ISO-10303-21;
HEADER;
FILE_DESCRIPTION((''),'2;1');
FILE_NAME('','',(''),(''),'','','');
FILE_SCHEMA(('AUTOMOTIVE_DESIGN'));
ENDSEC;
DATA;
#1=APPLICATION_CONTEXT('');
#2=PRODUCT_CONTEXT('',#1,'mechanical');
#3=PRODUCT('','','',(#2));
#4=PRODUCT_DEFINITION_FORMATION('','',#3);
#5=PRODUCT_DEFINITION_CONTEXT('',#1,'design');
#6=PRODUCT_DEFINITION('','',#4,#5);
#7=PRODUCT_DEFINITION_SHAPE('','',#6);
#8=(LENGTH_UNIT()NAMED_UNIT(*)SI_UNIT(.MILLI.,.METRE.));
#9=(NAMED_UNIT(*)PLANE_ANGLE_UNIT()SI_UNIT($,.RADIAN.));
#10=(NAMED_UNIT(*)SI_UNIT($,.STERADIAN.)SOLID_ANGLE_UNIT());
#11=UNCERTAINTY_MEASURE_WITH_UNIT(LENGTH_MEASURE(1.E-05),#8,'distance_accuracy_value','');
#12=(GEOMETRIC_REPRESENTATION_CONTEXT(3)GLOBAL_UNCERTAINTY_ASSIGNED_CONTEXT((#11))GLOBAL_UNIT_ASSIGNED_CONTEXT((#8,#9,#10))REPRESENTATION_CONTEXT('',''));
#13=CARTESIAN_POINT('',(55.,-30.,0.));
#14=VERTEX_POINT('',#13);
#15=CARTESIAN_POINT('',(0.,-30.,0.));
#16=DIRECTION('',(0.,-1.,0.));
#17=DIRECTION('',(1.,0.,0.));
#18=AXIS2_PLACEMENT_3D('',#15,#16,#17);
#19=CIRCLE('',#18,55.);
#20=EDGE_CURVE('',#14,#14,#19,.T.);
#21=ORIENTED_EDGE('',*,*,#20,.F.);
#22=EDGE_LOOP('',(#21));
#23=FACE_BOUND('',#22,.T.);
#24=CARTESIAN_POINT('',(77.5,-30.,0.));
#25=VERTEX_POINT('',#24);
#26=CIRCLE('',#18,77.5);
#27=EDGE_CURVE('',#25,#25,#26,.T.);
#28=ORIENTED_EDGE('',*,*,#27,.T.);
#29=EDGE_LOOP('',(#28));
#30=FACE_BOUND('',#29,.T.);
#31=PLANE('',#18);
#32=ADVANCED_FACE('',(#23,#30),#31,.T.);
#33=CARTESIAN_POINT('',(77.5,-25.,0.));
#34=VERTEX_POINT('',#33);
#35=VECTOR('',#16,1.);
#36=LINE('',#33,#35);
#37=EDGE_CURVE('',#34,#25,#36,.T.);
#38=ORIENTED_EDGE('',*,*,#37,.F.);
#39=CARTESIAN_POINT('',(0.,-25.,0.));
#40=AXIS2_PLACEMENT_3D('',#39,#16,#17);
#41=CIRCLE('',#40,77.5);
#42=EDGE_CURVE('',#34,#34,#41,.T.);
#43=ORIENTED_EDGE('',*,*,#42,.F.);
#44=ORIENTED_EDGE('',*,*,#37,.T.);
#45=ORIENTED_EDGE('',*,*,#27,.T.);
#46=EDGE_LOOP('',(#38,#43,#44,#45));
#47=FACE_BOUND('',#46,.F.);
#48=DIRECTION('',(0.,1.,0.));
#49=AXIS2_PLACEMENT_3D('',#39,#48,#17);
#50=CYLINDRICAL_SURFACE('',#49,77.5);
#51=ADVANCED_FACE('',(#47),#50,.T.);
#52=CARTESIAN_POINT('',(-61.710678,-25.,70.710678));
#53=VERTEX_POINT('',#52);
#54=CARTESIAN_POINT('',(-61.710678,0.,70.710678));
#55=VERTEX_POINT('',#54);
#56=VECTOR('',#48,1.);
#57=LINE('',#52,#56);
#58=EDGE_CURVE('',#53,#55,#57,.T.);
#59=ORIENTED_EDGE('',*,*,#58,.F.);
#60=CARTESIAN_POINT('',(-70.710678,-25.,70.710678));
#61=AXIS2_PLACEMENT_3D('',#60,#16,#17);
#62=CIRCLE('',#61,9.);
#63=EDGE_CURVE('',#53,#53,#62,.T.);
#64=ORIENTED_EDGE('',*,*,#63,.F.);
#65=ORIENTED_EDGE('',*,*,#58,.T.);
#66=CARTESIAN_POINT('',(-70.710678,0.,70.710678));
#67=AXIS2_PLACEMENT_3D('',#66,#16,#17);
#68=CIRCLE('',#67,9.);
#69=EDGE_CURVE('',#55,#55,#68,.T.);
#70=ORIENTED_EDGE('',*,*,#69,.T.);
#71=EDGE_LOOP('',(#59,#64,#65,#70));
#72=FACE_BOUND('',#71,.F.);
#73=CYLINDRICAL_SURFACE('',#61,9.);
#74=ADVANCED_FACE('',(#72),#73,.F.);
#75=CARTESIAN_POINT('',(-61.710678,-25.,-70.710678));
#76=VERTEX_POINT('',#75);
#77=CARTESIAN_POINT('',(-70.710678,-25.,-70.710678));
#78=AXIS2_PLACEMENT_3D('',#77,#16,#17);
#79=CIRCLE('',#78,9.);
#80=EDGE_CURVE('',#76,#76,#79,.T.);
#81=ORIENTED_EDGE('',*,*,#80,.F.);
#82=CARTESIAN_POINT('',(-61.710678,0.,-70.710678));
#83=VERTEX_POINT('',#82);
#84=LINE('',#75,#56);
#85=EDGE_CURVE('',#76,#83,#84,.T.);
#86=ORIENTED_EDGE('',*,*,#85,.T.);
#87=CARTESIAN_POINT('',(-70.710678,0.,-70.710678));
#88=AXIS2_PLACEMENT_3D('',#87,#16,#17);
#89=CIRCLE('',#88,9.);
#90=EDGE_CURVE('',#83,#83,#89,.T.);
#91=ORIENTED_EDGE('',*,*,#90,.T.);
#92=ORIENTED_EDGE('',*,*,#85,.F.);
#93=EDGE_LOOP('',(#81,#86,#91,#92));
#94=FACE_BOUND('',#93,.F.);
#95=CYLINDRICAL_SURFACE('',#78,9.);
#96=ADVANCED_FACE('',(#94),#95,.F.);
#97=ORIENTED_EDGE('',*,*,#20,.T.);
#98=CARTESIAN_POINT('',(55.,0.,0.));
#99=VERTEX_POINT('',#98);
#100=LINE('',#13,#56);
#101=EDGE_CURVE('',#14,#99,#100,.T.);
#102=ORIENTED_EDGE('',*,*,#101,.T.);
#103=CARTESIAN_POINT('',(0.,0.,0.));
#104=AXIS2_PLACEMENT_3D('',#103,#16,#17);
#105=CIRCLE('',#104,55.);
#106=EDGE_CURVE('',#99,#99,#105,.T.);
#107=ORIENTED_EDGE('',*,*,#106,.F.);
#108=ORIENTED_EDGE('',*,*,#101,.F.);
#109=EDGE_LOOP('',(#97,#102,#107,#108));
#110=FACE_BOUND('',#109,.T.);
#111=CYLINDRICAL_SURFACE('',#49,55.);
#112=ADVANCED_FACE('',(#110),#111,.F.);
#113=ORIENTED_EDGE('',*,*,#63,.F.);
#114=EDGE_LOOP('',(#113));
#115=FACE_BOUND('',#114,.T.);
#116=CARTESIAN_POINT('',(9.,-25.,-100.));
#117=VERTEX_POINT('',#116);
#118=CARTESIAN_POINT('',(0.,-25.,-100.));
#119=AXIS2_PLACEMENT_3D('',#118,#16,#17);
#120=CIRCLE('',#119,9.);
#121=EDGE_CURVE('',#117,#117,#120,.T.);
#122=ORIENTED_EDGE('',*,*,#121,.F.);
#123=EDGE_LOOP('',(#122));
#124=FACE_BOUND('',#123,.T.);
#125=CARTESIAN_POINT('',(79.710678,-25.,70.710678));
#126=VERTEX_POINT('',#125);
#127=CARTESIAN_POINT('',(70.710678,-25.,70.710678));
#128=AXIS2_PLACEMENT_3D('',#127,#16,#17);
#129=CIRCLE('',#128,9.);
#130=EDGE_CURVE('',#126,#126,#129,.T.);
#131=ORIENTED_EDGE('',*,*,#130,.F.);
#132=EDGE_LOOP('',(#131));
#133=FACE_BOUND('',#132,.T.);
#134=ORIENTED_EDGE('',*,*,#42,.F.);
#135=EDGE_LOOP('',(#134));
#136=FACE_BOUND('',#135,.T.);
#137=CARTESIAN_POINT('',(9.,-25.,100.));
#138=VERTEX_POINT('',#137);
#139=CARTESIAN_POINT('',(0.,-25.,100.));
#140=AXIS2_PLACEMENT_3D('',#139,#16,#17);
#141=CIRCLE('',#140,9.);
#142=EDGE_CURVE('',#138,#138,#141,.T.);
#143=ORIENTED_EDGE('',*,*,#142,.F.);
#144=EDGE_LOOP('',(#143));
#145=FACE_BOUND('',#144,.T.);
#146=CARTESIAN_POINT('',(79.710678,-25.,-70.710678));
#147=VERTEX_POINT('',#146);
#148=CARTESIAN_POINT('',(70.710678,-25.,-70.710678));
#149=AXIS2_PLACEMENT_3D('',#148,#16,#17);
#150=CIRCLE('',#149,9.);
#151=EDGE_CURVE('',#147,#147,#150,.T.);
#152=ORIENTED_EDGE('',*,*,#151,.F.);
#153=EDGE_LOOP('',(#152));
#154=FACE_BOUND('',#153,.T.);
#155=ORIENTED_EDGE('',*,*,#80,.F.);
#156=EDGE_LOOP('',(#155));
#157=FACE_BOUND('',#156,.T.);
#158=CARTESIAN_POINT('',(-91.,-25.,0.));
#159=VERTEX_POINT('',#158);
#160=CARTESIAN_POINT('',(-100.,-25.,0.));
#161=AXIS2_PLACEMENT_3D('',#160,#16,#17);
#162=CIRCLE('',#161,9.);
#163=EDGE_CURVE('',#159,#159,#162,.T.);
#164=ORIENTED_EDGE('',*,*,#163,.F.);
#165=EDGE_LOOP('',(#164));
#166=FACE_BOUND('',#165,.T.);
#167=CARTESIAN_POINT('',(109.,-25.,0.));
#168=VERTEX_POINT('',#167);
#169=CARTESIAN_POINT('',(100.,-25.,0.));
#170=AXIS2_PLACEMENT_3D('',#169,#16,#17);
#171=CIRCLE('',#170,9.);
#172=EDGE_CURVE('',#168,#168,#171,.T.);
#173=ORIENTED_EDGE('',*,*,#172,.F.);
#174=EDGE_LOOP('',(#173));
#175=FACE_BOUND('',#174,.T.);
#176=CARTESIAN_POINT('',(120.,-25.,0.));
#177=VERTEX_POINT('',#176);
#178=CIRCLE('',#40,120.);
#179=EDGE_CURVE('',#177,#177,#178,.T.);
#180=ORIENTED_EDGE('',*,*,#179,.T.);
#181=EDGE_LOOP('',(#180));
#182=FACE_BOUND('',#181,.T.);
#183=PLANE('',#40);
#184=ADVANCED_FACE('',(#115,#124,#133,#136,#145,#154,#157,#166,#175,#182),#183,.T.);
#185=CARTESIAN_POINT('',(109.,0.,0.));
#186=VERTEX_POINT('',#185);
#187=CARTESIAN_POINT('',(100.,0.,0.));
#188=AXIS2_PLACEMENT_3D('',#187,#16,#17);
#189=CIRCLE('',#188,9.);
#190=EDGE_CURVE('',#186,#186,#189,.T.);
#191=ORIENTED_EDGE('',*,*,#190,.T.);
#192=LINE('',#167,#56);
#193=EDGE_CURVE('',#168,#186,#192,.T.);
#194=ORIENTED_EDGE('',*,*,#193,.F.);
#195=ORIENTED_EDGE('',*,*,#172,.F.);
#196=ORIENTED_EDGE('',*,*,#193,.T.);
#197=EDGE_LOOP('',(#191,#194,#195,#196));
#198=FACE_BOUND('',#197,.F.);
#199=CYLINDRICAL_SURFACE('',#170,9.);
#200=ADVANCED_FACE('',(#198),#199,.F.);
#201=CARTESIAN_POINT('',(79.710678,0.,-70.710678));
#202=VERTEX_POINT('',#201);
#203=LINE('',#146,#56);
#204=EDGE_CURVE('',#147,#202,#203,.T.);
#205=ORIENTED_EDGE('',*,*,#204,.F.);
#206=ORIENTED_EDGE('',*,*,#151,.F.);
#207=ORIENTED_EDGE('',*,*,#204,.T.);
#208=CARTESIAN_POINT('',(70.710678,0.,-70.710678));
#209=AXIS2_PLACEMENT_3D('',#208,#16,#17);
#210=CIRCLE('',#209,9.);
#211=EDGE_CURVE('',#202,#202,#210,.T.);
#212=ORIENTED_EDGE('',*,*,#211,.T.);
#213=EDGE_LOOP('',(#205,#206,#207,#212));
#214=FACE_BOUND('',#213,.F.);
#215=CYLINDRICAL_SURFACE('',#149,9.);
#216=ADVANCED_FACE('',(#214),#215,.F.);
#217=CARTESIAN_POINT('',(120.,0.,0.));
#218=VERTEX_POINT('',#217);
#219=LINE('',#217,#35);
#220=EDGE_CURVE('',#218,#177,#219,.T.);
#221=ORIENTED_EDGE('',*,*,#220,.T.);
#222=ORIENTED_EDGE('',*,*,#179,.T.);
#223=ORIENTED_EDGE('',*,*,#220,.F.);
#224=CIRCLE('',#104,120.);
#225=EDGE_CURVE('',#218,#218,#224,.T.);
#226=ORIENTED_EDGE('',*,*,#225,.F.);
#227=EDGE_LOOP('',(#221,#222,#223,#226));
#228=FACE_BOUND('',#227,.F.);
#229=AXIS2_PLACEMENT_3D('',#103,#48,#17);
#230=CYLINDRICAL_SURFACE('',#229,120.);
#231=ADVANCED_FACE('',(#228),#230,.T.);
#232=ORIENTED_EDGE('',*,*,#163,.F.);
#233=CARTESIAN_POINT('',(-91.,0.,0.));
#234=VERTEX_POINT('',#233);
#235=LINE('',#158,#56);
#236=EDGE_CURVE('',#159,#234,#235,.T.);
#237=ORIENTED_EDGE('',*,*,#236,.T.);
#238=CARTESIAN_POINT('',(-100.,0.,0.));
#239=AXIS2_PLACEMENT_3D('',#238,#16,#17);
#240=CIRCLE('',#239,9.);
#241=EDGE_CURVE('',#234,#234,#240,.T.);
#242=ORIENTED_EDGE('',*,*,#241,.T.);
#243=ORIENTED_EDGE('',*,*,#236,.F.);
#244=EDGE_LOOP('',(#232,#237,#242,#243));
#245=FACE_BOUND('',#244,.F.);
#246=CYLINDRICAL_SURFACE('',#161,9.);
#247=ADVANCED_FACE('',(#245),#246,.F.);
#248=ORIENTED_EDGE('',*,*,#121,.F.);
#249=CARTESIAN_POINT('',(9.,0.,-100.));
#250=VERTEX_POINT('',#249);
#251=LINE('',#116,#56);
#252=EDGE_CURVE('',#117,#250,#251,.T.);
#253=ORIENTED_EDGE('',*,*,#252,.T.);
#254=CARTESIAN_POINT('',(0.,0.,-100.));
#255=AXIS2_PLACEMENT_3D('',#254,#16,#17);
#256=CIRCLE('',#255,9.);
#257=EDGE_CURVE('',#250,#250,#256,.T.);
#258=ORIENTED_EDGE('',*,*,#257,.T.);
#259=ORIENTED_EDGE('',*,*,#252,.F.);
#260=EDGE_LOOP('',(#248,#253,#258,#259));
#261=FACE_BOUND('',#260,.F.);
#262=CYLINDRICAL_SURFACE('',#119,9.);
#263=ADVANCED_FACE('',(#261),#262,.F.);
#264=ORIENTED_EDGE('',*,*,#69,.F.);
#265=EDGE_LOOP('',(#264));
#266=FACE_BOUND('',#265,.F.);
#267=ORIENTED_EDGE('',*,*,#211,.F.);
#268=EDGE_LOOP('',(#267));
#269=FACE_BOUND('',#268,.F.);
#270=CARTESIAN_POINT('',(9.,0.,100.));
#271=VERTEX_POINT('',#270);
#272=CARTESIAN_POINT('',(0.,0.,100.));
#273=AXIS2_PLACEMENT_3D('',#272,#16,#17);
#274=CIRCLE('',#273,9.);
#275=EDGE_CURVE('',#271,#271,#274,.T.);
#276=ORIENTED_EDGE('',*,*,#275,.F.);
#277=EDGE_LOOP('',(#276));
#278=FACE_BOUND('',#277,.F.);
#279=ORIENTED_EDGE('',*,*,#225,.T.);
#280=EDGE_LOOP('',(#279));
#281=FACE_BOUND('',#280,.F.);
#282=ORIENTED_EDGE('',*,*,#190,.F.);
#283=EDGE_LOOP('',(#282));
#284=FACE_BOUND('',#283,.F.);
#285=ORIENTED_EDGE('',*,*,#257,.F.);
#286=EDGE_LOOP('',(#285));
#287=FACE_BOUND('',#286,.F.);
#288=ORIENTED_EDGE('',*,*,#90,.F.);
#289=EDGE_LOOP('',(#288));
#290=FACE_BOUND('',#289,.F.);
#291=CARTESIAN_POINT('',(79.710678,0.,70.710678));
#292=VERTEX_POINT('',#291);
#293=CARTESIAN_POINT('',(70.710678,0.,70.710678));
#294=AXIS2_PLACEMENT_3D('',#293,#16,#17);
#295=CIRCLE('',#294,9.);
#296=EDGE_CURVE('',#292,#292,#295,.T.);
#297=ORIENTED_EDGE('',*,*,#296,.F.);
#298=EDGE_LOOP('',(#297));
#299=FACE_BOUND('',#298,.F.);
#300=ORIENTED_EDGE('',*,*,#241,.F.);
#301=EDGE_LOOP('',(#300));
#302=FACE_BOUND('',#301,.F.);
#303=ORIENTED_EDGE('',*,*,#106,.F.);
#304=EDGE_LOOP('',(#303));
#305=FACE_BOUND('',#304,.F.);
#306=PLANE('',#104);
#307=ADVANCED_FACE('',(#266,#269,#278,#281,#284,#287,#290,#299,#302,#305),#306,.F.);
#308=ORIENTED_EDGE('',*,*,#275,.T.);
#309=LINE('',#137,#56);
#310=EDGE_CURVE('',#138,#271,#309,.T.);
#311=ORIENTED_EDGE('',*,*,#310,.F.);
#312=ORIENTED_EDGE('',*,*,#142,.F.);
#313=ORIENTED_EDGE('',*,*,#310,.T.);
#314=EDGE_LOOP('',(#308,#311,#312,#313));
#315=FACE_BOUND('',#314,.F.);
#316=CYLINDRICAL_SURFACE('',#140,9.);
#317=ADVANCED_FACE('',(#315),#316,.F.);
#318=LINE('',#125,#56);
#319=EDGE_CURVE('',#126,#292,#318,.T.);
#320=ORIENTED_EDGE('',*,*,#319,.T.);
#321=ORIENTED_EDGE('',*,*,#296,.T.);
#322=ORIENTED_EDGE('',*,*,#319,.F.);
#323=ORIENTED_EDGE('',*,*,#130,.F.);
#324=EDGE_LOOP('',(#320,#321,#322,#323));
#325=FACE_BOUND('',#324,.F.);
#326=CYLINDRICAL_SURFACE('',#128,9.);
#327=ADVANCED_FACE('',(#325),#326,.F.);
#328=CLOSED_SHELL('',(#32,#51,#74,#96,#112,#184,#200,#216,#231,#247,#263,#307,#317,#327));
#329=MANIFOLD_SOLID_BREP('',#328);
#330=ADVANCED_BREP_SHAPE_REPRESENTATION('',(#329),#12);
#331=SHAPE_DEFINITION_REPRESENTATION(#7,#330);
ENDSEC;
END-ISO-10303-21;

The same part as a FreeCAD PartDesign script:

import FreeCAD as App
import Part
import Sketcher
from FreeCAD import Vector
Q = App.Units.Quantity

doc = App.newDocument("Part")
body = doc.addObject("PartDesign::Body", "Body")

# Sketch on XZ plane
sketch1 = body.newObject("Sketcher::SketchObject", "Sketch")
sketch1.AttachmentSupport = (doc.getObject("XZ_Plane"), [""])
sketch1.MapMode = "FlatFace"
sketch1.addGeometry(Part.Circle(Vector(0, 0, 0), Vector(0, 0, 1), 120), False)
sketch1.addGeometry(Part.Circle(Vector(0, 0, 0), Vector(0, 0, 1), 55), False)
sketch1.addConstraint(Sketcher.Constraint("Coincident", 0, 3, -1, 1))
sketch1.addConstraint(Sketcher.Constraint("Coincident", 1, 3, -1, 1))
sketch1.addConstraint(Sketcher.Constraint("Diameter", 0, Q("240 mm")))
sketch1.addConstraint(Sketcher.Constraint("Diameter", 1, Q("110 mm")))
pad1 = body.newObject("PartDesign::Pad", "Pad")
pad1.Profile = sketch1
pad1.Length = 25

# Sketch on XZ plane
sketch2 = body.newObject("Sketcher::SketchObject", "Sketch001")
sketch2.AttachmentSupport = (doc.getObject("XZ_Plane"), [""])
sketch2.MapMode = "FlatFace"
sketch2.AttachmentOffset = App.Placement(Vector(0, 0, 25), App.Rotation())
sketch2.addGeometry(Part.Circle(Vector(0, 100, 0), Vector(0, 0, 1), 9), False)
sketch2.addGeometry(Part.Circle(Vector(-71, 71, 0), Vector(0, 0, 1), 9), False)
sketch2.addGeometry(Part.Circle(Vector(-100, 0, 0), Vector(0, 0, 1), 9), False)
sketch2.addGeometry(Part.Circle(Vector(-71, -71, 0), Vector(0, 0, 1), 9), False)
sketch2.addGeometry(Part.Circle(Vector(0, -100, 0), Vector(0, 0, 1), 9), False)
sketch2.addGeometry(Part.Circle(Vector(71, -71, 0), Vector(0, 0, 1), 9), False)
sketch2.addGeometry(Part.Circle(Vector(100, 0, 0), Vector(0, 0, 1), 9), False)
sketch2.addGeometry(Part.Circle(Vector(71, 71, 0), Vector(0, 0, 1), 9), False)
sketch2.addConstraint(Sketcher.Constraint("Equal", 0, 1))
sketch2.addConstraint(Sketcher.Constraint("Equal", 1, 2))
sketch2.addConstraint(Sketcher.Constraint("Equal", 2, 3))
sketch2.addConstraint(Sketcher.Constraint("Equal", 3, 4))
sketch2.addConstraint(Sketcher.Constraint("Equal", 4, 5))
sketch2.addConstraint(Sketcher.Constraint("Equal", 5, 6))
sketch2.addConstraint(Sketcher.Constraint("Equal", 6, 7))
sketch2.addConstraint(Sketcher.Constraint("Symmetric", 0, 3, 4, 3, -1, 1))
sketch2.addConstraint(Sketcher.Constraint("Symmetric", 1, 3, 5, 3, -1, 1))
sketch2.addConstraint(Sketcher.Constraint("Symmetric", 2, 3, 6, 3, -1, 1))
sketch2.addConstraint(Sketcher.Constraint("Symmetric", 3, 3, 7, 3, -1, 1))
sketch2.addConstraint(Sketcher.Constraint("Symmetric", 3, 3, 5, 3, -2))
sketch2.addConstraint(Sketcher.Constraint("PointOnObject", 0, 3, -2))
sketch2.addConstraint(Sketcher.Constraint("PointOnObject", 2, 3, -1))
sketch2.addConstraint(Sketcher.Constraint("Diameter", 0, Q("18 mm")))
sketch2.addConstraint(Sketcher.Constraint("DistanceY", -1, 1, 0, 3, Q("100 mm")))
sketch2.addConstraint(Sketcher.Constraint("DistanceX", 2, 3, -1, 1, Q("100 mm")))
sketch2.addConstraint(Sketcher.Constraint("DistanceX", 1, 3, -1, 1, Q("70.710678 mm")))
sketch2.addConstraint(Sketcher.Constraint("DistanceY", -1, 1, 1, 3, Q("70.710678 mm")))
pocket1 = body.newObject("PartDesign::Pocket", "Pocket")
pocket1.Profile = sketch2
pocket1.Length = 25

# Sketch on XZ plane
sketch3 = body.newObject("Sketcher::SketchObject", "Sketch002")
sketch3.AttachmentSupport = (doc.getObject("XZ_Plane"), [""])
sketch3.MapMode = "FlatFace"
sketch3.AttachmentOffset = App.Placement(Vector(0, 0, 25), App.Rotation())
sketch3.addGeometry(Part.Circle(Vector(0, 0, 0), Vector(0, 0, 1), 78), False)
sketch3.addGeometry(Part.Circle(Vector(0, 0, 0), Vector(0, 0, 1), 55), False)
sketch3.addConstraint(Sketcher.Constraint("Coincident", 0, 3, -1, 1))
sketch3.addConstraint(Sketcher.Constraint("Coincident", 1, 3, -1, 1))
sketch3.addConstraint(Sketcher.Constraint("Diameter", 0, Q("155 mm")))
sketch3.addConstraint(Sketcher.Constraint("Diameter", 1, Q("110 mm")))
pad2 = body.newObject("PartDesign::Pad", "Pad001")
pad2.Profile = sketch3
pad2.Length = 5

doc.recompute()
